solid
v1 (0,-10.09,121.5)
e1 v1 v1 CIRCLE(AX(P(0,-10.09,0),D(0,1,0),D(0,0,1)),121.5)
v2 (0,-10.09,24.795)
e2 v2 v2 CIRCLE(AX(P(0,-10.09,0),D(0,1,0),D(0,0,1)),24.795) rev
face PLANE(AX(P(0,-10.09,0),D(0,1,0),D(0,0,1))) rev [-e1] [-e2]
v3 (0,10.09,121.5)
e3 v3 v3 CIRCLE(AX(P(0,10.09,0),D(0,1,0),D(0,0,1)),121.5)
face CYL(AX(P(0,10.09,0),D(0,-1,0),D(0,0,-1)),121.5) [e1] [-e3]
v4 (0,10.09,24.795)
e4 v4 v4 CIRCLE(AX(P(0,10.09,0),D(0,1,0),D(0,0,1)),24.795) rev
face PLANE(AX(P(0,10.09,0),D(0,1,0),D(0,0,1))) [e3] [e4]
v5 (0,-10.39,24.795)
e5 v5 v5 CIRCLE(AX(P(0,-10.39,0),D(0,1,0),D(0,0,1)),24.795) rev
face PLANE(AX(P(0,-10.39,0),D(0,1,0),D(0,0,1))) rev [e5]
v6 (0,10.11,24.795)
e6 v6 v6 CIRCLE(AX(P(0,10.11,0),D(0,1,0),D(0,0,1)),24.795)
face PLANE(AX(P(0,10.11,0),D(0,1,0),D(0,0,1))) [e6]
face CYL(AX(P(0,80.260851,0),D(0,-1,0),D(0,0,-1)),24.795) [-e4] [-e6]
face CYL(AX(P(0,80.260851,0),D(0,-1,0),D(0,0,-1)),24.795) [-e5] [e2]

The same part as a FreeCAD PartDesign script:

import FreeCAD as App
import Part
import Sketcher
from FreeCAD import Vector

doc = App.newDocument("Part")
params = doc.addObject("Spreadsheet::Sheet", "Params")
for row, (alias, value) in enumerate([
    ("sketch1_diameter", "243 mm"),
    ("pad1_length", "20.18 mm"),
    ("sketch2_diameter", "49.59 mm"),
    ("pad2_length", "10.11 mm"),
    ("pad2_length2", "10.39 mm"),
], start=1):
    params.set(f"A{row}", alias)
    params.set(f"B{row}", "=" + value)
    params.setAlias(f"B{row}", alias)

body = doc.addObject("PartDesign::Body", "Body")

sketch1 = doc.addObject("Sketcher::SketchObject", "Sketch")
body.addObject(sketch1)
sketch1.AttachmentSupport = (doc.XZ_Plane, [""])
sketch1.MapMode = "FlatFace"
sketch1.addGeometry(Part.Circle(Vector(0, 0, 0), Vector(0, 0, 1), 122), False)
sketch1.addConstraint([
    Sketcher.Constraint("Coincident", 0, 3, -1, 1),
    Sketcher.Constraint("Diameter", 0, 243.0),
])
sketch1.setExpression("Constraints[1]", "Params.sketch1_diameter")
pad1 = doc.addObject("PartDesign::Pad", "Pad")
body.addObject(pad1)
pad1.Profile = sketch1
pad1.setExpression("Length", "Params.pad1_length")
pad1.Midplane = True

sketch2 = doc.addObject("Sketcher::SketchObject", "Sketch001")
body.addObject(sketch2)
sketch2.AttachmentSupport = (doc.XZ_Plane, [""])
sketch2.MapMode = "FlatFace"
sketch2.addGeometry(Part.Circle(Vector(0, 0, 0), Vector(0, 0, 1), 25), False)
sketch2.addConstraint([
    Sketcher.Constraint("Coincident", 0, 3, -1, 1),
    Sketcher.Constraint("Diameter", 0, 49.59),
])
sketch2.setExpression("Constraints[1]", "Params.sketch2_diameter")
pad2 = doc.addObject("PartDesign::Pad", "Pad001")
body.addObject(pad2)
pad2.Profile = sketch2
pad2.Type = "TwoLengths"
pad2.setExpression("Length", "Params.pad2_length")
pad2.setExpression("Length2", "Params.pad2_length2")
pad2.Reversed = True

doc.recompute()
